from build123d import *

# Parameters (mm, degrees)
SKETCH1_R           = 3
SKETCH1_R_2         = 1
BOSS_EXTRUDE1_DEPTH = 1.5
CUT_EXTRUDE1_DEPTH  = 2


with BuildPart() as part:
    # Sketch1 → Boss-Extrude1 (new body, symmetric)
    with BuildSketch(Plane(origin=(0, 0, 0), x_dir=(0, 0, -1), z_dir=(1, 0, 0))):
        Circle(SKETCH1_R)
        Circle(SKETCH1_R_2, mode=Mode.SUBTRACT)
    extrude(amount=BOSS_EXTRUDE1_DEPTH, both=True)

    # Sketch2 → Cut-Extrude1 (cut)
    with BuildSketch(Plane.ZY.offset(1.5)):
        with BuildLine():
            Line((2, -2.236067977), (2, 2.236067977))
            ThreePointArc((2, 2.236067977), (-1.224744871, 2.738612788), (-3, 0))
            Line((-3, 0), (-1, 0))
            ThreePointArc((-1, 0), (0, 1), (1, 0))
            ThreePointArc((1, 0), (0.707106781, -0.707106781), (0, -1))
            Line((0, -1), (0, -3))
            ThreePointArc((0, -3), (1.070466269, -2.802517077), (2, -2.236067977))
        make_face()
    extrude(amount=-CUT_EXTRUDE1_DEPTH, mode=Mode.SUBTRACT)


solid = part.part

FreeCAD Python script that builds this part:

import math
import FreeCAD as App
import Part
import Sketcher
from FreeCAD import Vector

doc = App.newDocument("Part")
body = doc.addObject("PartDesign::Body", "Body")

# Sketch on YZ plane
sketch1 = body.newObject("Sketcher::SketchObject", "Sketch")
sketch1.AttachmentSupport = (doc.getObject("YZ_Plane"), [""])
sketch1.MapMode = "FlatFace"
sketch1.addGeometry(Part.Circle(Vector(0, 0, 0), Vector(0, 0, 1), 3), False)
sketch1.addGeometry(Part.Circle(Vector(0, 0, 0), Vector(0, 0, 1), 1), False)
sketch1.addConstraint(Sketcher.Constraint("Coincident", 0, 3, -1, 1))
sketch1.addConstraint(Sketcher.Constraint("Coincident", 1, 3, -1, 1))
sketch1.addConstraint(Sketcher.Constraint("Diameter", 0, 6.0))
sketch1.addConstraint(Sketcher.Constraint("Diameter", 1, 2.0))
pad1 = body.newObject("PartDesign::Pad", "Pad")
pad1.Profile = sketch1
pad1.Length = 3
pad1.Midplane = True

# Sketch on YZ plane
sketch2 = body.newObject("Sketcher::SketchObject", "Sketch001")
sketch2.AttachmentSupport = (doc.getObject("YZ_Plane"), [""])
sketch2.MapMode = "FlatFace"
sketch2.AttachmentOffset = App.Placement(Vector(0, 0, -1.5), App.Rotation())
sketch2.addGeometry(Part.LineSegment(Vector(-2.236068, 2, 0), Vector(2.236068, 2, 0)), False)
sketch2.addGeometry(Part.ArcOfCircle(Part.Circle(Vector(0, 0, 0), Vector(0, 0, 1), 3), math.radians(-90), math.radians(41.810315)), False)
sketch2.addGeometry(Part.LineSegment(Vector(0, -3, 0), Vector(0, -1, 0)), False)
sketch2.addGeometry(Part.ArcOfCircle(Part.Circle(Vector(0, 0, 0), Vector(0, 0, 1), 1), math.radians(-90), math.radians(90)), False)
sketch2.addGeometry(Part.ArcOfCircle(Part.Circle(Vector(0, 0, 0), Vector(0, 0, 1), 1), math.radians(90), math.radians(180)), False)
sketch2.addGeometry(Part.LineSegment(Vector(-1, 0, 0), Vector(-3, 0, 0)), False)
sketch2.addGeometry(Part.ArcOfCircle(Part.Circle(Vector(0, 0, 0), Vector(0, 0, 1), 3), math.radians(138.189685), math.radians(180)), False)
sketch2.addConstraint(Sketcher.Constraint("Coincident", 0, 2, 1, 2))
sketch2.addConstraint(Sketcher.Constraint("Coincident", 1, 1, 2, 1))
sketch2.addConstraint(Sketcher.Constraint("Coincident", 2, 2, 3, 1))
sketch2.addConstraint(Sketcher.Constraint("Tangent", 3, 2, 4, 1))
sketch2.addConstraint(Sketcher.Constraint("Coincident", 4, 2, 5, 1))
sketch2.addConstraint(Sketcher.Constraint("Coincident", 5, 2, 6, 2))
sketch2.addConstraint(Sketcher.Constraint("Coincident", 6, 1, 0, 1))
sketch2.addConstraint(Sketcher.Constraint("Horizontal", 0))
sketch2.addConstraint(Sketcher.Constraint("Vertical", 2))
sketch2.addConstraint(Sketcher.Constraint("Horizontal", 5))
sketch2.addConstraint(Sketcher.Constraint("Coincident", 1, 3, -1, 1))
sketch2.addConstraint(Sketcher.Constraint("Coincident", 3, 3, -1, 1))
sketch2.addConstraint(Sketcher.Constraint("Coincident", 6, 3, -1, 1))
sketch2.addConstraint(Sketcher.Constraint("Equal", 3, 4))
sketch2.addConstraint(Sketcher.Constraint("Equal", 1, 6))
sketch2.addConstraint(Sketcher.Constraint("PointOnObject", 1, 1, -2))
sketch2.addConstraint(Sketcher.Constraint("PointOnObject", 3, 2, -2))
sketch2.addConstraint(Sketcher.Constraint("PointOnObject", 4, 2, -1))
sketch2.addConstraint(Sketcher.Constraint("Radius", 1, 3.0))
sketch2.addConstraint(Sketcher.Constraint("Radius", 3, 1.0))
sketch2.addConstraint(Sketcher.Constraint("DistanceY", -1, 1, 0, 2, 2.0))
pocket1 = body.newObject("PartDesign::Pocket", "Pocket")
pocket1.Profile = sketch2
pocket1.Length = 2
pocket1.Reversed = True

doc.recompute()
